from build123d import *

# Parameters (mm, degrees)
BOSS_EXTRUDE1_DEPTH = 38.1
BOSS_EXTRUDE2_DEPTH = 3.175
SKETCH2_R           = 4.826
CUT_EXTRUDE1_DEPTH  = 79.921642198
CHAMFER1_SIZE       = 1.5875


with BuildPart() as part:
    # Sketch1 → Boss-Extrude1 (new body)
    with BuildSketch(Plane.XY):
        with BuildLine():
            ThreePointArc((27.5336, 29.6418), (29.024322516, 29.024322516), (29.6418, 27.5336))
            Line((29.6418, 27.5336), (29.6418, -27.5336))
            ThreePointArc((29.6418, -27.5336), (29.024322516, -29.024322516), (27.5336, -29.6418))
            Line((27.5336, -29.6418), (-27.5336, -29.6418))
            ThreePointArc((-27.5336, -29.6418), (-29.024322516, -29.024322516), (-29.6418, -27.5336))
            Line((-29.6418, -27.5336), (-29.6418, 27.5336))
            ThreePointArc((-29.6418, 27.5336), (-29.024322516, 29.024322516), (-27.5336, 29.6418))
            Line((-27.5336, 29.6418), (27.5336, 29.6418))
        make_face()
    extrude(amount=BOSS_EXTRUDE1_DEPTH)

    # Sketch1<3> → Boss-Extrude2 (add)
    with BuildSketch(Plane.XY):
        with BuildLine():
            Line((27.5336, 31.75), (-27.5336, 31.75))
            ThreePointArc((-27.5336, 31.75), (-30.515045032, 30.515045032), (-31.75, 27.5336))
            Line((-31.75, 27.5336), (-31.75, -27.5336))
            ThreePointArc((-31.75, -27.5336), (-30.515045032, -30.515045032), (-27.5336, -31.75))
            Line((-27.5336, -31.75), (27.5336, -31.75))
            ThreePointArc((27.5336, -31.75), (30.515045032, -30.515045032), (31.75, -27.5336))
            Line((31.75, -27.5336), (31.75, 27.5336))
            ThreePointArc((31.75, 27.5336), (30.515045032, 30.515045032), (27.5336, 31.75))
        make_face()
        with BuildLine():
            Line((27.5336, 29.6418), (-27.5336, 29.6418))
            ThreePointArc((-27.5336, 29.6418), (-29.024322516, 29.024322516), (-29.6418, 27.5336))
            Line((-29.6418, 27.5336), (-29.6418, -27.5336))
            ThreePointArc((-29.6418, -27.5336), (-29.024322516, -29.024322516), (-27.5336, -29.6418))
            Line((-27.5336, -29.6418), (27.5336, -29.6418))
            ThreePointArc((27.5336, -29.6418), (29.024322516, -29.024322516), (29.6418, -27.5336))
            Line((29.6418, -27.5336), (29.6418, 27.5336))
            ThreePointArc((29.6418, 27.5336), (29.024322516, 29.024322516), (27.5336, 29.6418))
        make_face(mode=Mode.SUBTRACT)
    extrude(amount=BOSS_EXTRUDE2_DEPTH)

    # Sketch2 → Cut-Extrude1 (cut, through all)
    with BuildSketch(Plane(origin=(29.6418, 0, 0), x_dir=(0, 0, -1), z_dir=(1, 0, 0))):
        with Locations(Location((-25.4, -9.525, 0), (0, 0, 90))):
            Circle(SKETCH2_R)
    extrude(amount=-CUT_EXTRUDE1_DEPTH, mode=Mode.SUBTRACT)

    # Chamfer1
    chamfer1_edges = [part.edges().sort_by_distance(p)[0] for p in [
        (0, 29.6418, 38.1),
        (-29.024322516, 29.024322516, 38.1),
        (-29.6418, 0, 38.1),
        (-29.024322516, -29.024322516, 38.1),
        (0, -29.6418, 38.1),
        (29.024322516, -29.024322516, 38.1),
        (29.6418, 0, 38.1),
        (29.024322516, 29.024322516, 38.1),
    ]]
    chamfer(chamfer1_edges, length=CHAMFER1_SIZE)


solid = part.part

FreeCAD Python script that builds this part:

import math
import FreeCAD as App
import Part
import Sketcher
from FreeCAD import Vector
Q = App.Units.Quantity


def edges_at(feature, points):
    """Names of the edges that pass closest to the given points."""
    edges = feature.Shape.Edges
    near = lambda p: min(range(len(edges)), key=lambda i: edges[i].distToShape(Part.Vertex(*p))[0])
    return sorted({f"Edge{near(p) + 1}" for p in points})

doc = App.newDocument("Part")
params = doc.addObject("Spreadsheet::Sheet", "Params")
for row, (alias, value) in enumerate([
    ("sketch1_radius", "0.083 in"),
    ("sketch1_width", "2.168 in"),
    ("pad1_length", "1.5 in"),
    ("sketch2_radius", "0.166 in"),
    ("sketch2_radius2", "0.083 in"),
    ("sketch2_width", "2.168 in"),
    ("pad2_length", "0.125 in"),
    ("sketch3_diameter", "0.38 in"),
    ("chamfer_size", "0.0625 in"),
], start=1):
    params.set(f"A{row}", alias)
    params.set(f"B{row}", "=" + value)
    params.setAlias(f"B{row}", alias)

body = doc.addObject("PartDesign::Body", "Body")

# Sketch on XY plane
sketch1 = doc.addObject("Sketcher::SketchObject", "Sketch")
body.addObject(sketch1)
sketch1.AttachmentSupport = (doc.XY_Plane, [""])
sketch1.MapMode = "FlatFace"
sketch1.addGeometry(Part.ArcOfCircle(Part.Circle(Vector(27.5, 27.5, 0), Vector(0, 0, 1), 2.1), math.radians(0), math.radians(90)), False)
sketch1.addGeometry(Part.LineSegment(Vector(27.5, 29.6, 0), Vector(-27.5, 29.6, 0)), False)
sketch1.addGeometry(Part.ArcOfCircle(Part.Circle(Vector(-27.5, 27.5, 0), Vector(0, 0, 1), 2.1), math.radians(90), math.radians(180)), False)
sketch1.addGeometry(Part.LineSegment(Vector(-29.6, 27.5, 0), Vector(-29.6, -27.5, 0)), False)
sketch1.addGeometry(Part.ArcOfCircle(Part.Circle(Vector(-27.5, -27.5, 0), Vector(0, 0, 1), 2.1), math.radians(180), math.radians(270)), False)
sketch1.addGeometry(Part.LineSegment(Vector(-27.5, -29.6, 0), Vector(27.5, -29.6, 0)), False)
sketch1.addGeometry(Part.ArcOfCircle(Part.Circle(Vector(27.5, -27.5, 0), Vector(0, 0, 1), 2.1), math.radians(-90), math.radians(0)), False)
sketch1.addGeometry(Part.LineSegment(Vector(29.6, -27.5, 0), Vector(29.6, 27.5, 0)), False)
sketch1.addConstraint(Sketcher.Constraint("Tangent", 0, 2, 1, 1))
sketch1.addConstraint(Sketcher.Constraint("Tangent", 1, 2, 2, 1))
sketch1.addConstraint(Sketcher.Constraint("Tangent", 2, 2, 3, 1))
sketch1.addConstraint(Sketcher.Constraint("Tangent", 3, 2, 4, 1))
sketch1.addConstraint(Sketcher.Constraint("Tangent", 4, 2, 5, 1))
sketch1.addConstraint(Sketcher.Constraint("Tangent", 5, 2, 6, 1))
sketch1.addConstraint(Sketcher.Constraint("Tangent", 6, 2, 7, 1))
sketch1.addConstraint(Sketcher.Constraint("Tangent", 7, 2, 0, 1))
sketch1.addConstraint(Sketcher.Constraint("Horizontal", 1))
sketch1.addConstraint(Sketcher.Constraint("Vertical", 3))
sketch1.addConstraint(Sketcher.Constraint("Horizontal", 5))
sketch1.addConstraint(Sketcher.Constraint("Vertical", 7))
sketch1.addConstraint(Sketcher.Constraint("Equal", 0, 2))
sketch1.addConstraint(Sketcher.Constraint("Equal", 2, 4))
sketch1.addConstraint(Sketcher.Constraint("Equal", 4, 6))
sketch1.addConstraint(Sketcher.Constraint("Symmetric", 0, 3, 4, 3, -1, 1))
sketch1.addConstraint(Sketcher.Constraint("Equal", 5, 3))
sketch1.addConstraint(Sketcher.Constraint("Radius", 0, Q("0.083 in")))
sketch1.addConstraint(Sketcher.Constraint("DistanceX", 1, 2, 1, 1, Q("2.168 in")))
sketch1.setExpression("Constraints[17]", "Params.sketch1_radius")
sketch1.setExpression("Constraints[18]", "Params.sketch1_width")
pad1 = doc.addObject("PartDesign::Pad", "Pad")
body.addObject(pad1)
pad1.Profile = sketch1
pad1.setExpression("Length", "Params.pad1_length")

# Sketch on XY plane
sketch2 = doc.addObject("Sketcher::SketchObject", "Sketch001")
body.addObject(sketch2)
sketch2.AttachmentSupport = (doc.XY_Plane, [""])
sketch2.MapMode = "FlatFace"
sketch2.addGeometry(Part.LineSegment(Vector(27.5, 31.8, 0), Vector(-27.5, 31.8, 0)), False)
sketch2.addGeometry(Part.ArcOfCircle(Part.Circle(Vector(-27.5, 27.5, 0), Vector(0, 0, 1), 4.2), math.radians(90), math.radians(180)), False)
sketch2.addGeometry(Part.LineSegment(Vector(-31.8, 27.5, 0), Vector(-31.8, -27.5, 0)), False)
sketch2.addGeometry(Part.ArcOfCircle(Part.Circle(Vector(-27.5, -27.5, 0), Vector(0, 0, 1), 4.2), math.radians(-180), math.radians(-90)), False)
sketch2.addGeometry(Part.LineSegment(Vector(-27.5, -31.8, 0), Vector(27.5, -31.8, 0)), False)
sketch2.addGeometry(Part.ArcOfCircle(Part.Circle(Vector(27.5, -27.5, 0), Vector(0, 0, 1), 4.2), math.radians(-90), math.radians(0)), False)
sketch2.addGeometry(Part.LineSegment(Vector(31.8, -27.5, 0), Vector(31.8, 27.5, 0)), False)
sketch2.addGeometry(Part.ArcOfCircle(Part.Circle(Vector(27.5, 27.5, 0), Vector(0, 0, 1), 4.2), math.radians(0), math.radians(90)), False)
sketch2.addGeometry(Part.LineSegment(Vector(-27.5, 29.6, 0), Vector(27.5, 29.6, 0)), False)
sketch2.addGeometry(Part.ArcOfCircle(Part.Circle(Vector(27.5, 27.5, 0), Vector(0, 0, 1), 2.1), math.radians(0), math.radians(90)), False)
sketch2.addGeometry(Part.LineSegment(Vector(29.6, 27.5, 0), Vector(29.6, -27.5, 0)), False)
sketch2.addGeometry(Part.ArcOfCircle(Part.Circle(Vector(27.5, -27.5, 0), Vector(0, 0, 1), 2.1), math.radians(-90), math.radians(0)), False)
sketch2.addGeometry(Part.LineSegment(Vector(27.5, -29.6, 0), Vector(-27.5, -29.6, 0)), False)
sketch2.addGeometry(Part.ArcOfCircle(Part.Circle(Vector(-27.5, -27.5, 0), Vector(0, 0, 1), 2.1), math.radians(180), math.radians(270)), False)
sketch2.addGeometry(Part.LineSegment(Vector(-29.6, -27.5, 0), Vector(-29.6, 27.5, 0)), False)
sketch2.addGeometry(Part.ArcOfCircle(Part.Circle(Vector(-27.5, 27.5, 0), Vector(0, 0, 1), 2.1), math.radians(90), math.radians(180)), False)
sketch2.addConstraint(Sketcher.Constraint("Tangent", 0, 2, 1, 1))
sketch2.addConstraint(Sketcher.Constraint("Tangent", 1, 2, 2, 1))
sketch2.addConstraint(Sketcher.Constraint("Tangent", 2, 2, 3, 1))
sketch2.addConstraint(Sketcher.Constraint("Tangent", 3, 2, 4, 1))
sketch2.addConstraint(Sketcher.Constraint("Tangent", 4, 2, 5, 1))
sketch2.addConstraint(Sketcher.Constraint("Tangent", 5, 2, 6, 1))
sketch2.addConstraint(Sketcher.Constraint("Tangent", 6, 2, 7, 1))
sketch2.addConstraint(Sketcher.Constraint("Tangent", 7, 2, 0, 1))
sketch2.addConstraint(Sketcher.Constraint("Tangent", 8, 2, 9, 2))
sketch2.addConstraint(Sketcher.Constraint("Tangent", 9, 1, 10, 1))
sketch2.addConstraint(Sketcher.Constraint("Tangent", 10, 2, 11, 2))
sketch2.addConstraint(Sketcher.Constraint("Tangent", 11, 1, 12, 1))
sketch2.addConstraint(Sketcher.Constraint("Tangent", 12, 2, 13, 2))
sketch2.addConstraint(Sketcher.Constraint("Tangent", 13, 1, 14, 1))
sketch2.addConstraint(Sketcher.Constraint("Tangent", 14, 2, 15, 2))
sketch2.addConstraint(Sketcher.Constraint("Tangent", 15, 1, 8, 1))
sketch2.addConstraint(Sketcher.Constraint("Horizontal", 0))
sketch2.addConstraint(Sketcher.Constraint("Vertical", 2))
sketch2.addConstraint(Sketcher.Constraint("Horizontal", 4))
sketch2.addConstraint(Sketcher.Constraint("Vertical", 6))
sketch2.addConstraint(Sketcher.Constraint("Horizontal", 8))
sketch2.addConstraint(Sketcher.Constraint("Vertical", 10))
sketch2.addConstraint(Sketcher.Constraint("Horizontal", 12))
sketch2.addConstraint(Sketcher.Constraint("Vertical", 14))
sketch2.addConstraint(Sketcher.Constraint("Coincident", 9, 3, 7, 3))
sketch2.addConstraint(Sketcher.Constraint("Coincident", 11, 3, 5, 3))
sketch2.addConstraint(Sketcher.Constraint("Coincident", 13, 3, 3, 3))
sketch2.addConstraint(Sketcher.Constraint("Equal", 1, 3))
sketch2.addConstraint(Sketcher.Constraint("Equal", 3, 5))
sketch2.addConstraint(Sketcher.Constraint("Equal", 5, 7))
sketch2.addConstraint(Sketcher.Constraint("Equal", 13, 15))
sketch2.addConstraint(Sketcher.Constraint("Symmetric", 1, 3, 5, 3, -1, 1))
sketch2.addConstraint(Sketcher.Constraint("Equal", 12, 2))
sketch2.addConstraint(Sketcher.Constraint("Radius", 1, Q("0.166 in")))
sketch2.addConstraint(Sketcher.Constraint("Radius", 9, Q("0.083 in")))
sketch2.addConstraint(Sketcher.Constraint("DistanceX", 0, 2, 0, 1, Q("2.168 in")))
sketch2.setExpression("Constraints[33]", "Params.sketch2_radius")
sketch2.setExpression("Constraints[34]", "Params.sketch2_radius2")
sketch2.setExpression("Constraints[35]", "Params.sketch2_width")
pad2 = doc.addObject("PartDesign::Pad", "Pad001")
body.addObject(pad2)
pad2.Profile = sketch2
pad2.setExpression("Length", "Params.pad2_length")

# Sketch on YZ plane
sketch3 = doc.addObject("Sketcher::SketchObject", "Sketch002")
body.addObject(sketch3)
sketch3.AttachmentSupport = (doc.YZ_Plane, [""])
sketch3.MapMode = "FlatFace"
sketch3.AttachmentOffset = App.Placement(Vector(0, 0, 1.167 * 25.4), App.Rotation())
sketch3.addGeometry(Part.Circle(Vector(-9.5, 25.4, 0), Vector(0, 0, 1), 4.8), False)
sketch3.addConstraint(Sketcher.Constraint("Diameter", 0, Q("0.38 in")))
sketch3.addConstraint(Sketcher.Constraint("DistanceY", -1, 1, 0, 3, Q("1 in")))
sketch3.addConstraint(Sketcher.Constraint("DistanceX", 0, 3, -1, 1, Q("0.375 in")))
sketch3.setExpression("Constraints[0]", "Params.sketch3_diameter")
pocket1 = doc.addObject("PartDesign::Pocket", "Pocket")
body.addObject(pocket1)
pocket1.Profile = sketch3
pocket1.Type = "ThroughAll"
doc.recompute()

chamfer = doc.addObject("PartDesign::Chamfer", "Chamfer")
body.addObject(chamfer)
chamfer.Base = (pocket1, edges_at(pocket1, [
    (0, 29.642, 38.1),
    (-29.024, 29.024, 38.1),
    (-29.642, 0, 38.1),
    (-29.024, -29.024, 38.1),
    (0, -29.642, 38.1),
    (29.024, -29.024, 38.1),
    (29.642, 0, 38.1),
    (29.024, 29.024, 38.1),
]))
chamfer.setExpression("Size", "Params.chamfer_size")

doc.recompute()
